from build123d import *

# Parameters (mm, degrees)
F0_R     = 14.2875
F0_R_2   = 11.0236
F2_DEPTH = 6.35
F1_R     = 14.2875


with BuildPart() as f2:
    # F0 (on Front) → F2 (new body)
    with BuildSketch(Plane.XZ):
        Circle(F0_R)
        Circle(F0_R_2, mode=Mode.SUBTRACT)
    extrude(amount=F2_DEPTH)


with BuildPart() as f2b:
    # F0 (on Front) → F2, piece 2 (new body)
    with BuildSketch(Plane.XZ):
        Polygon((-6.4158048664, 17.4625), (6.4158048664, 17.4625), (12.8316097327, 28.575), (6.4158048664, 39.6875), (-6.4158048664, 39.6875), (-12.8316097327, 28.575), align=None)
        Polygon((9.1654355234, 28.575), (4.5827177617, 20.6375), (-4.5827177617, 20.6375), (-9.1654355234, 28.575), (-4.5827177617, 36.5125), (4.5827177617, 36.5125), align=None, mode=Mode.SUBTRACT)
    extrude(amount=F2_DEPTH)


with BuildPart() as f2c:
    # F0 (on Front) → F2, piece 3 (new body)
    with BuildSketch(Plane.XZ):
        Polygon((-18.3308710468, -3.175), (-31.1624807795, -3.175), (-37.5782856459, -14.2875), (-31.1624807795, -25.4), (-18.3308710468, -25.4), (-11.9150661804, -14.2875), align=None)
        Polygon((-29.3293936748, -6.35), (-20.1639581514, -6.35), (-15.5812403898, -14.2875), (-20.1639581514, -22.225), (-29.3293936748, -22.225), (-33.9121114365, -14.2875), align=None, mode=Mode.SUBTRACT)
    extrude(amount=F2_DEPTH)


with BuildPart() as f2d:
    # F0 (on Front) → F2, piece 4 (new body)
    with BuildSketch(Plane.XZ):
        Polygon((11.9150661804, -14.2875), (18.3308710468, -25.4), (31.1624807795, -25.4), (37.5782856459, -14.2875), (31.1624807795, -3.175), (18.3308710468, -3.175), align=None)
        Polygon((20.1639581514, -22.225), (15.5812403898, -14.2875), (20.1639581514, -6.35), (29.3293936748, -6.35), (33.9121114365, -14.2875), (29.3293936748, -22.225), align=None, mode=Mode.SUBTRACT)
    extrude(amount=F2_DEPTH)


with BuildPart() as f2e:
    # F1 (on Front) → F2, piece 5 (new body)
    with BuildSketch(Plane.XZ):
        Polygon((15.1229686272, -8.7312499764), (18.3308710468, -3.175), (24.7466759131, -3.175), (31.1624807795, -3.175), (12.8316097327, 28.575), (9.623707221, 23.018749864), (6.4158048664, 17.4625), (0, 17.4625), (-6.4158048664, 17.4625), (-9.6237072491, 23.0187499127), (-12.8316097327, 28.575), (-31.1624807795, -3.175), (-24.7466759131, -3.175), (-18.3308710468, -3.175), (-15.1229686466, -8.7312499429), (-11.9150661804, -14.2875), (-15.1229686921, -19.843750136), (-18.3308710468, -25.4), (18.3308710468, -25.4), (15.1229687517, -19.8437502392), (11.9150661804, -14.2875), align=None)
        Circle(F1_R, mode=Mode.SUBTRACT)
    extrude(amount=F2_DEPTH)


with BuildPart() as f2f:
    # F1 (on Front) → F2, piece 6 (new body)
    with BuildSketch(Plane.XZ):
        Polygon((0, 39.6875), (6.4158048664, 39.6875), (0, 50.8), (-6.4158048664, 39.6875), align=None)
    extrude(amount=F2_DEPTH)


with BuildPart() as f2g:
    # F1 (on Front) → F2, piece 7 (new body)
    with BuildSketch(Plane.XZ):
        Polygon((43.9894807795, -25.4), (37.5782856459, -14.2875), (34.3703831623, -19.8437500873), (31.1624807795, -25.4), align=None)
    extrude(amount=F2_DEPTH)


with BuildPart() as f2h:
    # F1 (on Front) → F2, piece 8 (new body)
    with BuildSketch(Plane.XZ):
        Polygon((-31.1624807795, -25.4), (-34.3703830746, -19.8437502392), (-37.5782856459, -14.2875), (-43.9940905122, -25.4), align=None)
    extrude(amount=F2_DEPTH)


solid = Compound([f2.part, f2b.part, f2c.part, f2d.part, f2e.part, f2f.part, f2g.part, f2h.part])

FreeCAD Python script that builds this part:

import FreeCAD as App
import Part
import Sketcher

V = App.Vector
Q = App.Units.Quantity

doc = App.newDocument("Part")
body = doc.addObject("PartDesign::Body", "Body")

# Sketch on XZ plane
sketch1 = body.newObject("Sketcher::SketchObject", "Sketch")
sketch1.AttachmentSupport = (doc.getObject("XZ_Plane"), [""])
sketch1.MapMode = "FlatFace"
sketch1.addGeometry([
    Part.Circle(V(0, 0, 0), V(0, 0, 1), 14),
    Part.Circle(V(0, 0, 0), V(0, 0, 1), 11),
], False)
sketch1.addConstraint([
    Sketcher.Constraint("Coincident", 0, 3, -1, 1),
    Sketcher.Constraint("Coincident", 1, 3, -1, 1),
    Sketcher.Constraint("Diameter", 0, Q("1.125 in")),
    Sketcher.Constraint("Diameter", 1, Q("0.868 in")),
])
pad1 = body.newObject("PartDesign::Pad", "Pad")
pad1.Profile = sketch1
pad1.Length = Q("0.25 in")
body2 = doc.addObject("PartDesign::Body", "Body001")

# Sketch on XZ plane
sketch2 = body2.newObject("Sketcher::SketchObject", "Sketch001")
sketch2.AttachmentSupport = (doc.getObject("XZ_Plane001"), [""])
sketch2.MapMode = "FlatFace"
sketch2.addGeometry([
    Part.LineSegment(V(-6, 17, 0), V(6, 17, 0)),  # 0
    Part.LineSegment(V(6, 17, 0), V(13, 29, 0)),  # 1
    Part.LineSegment(V(13, 29, 0), V(6, 40, 0)),  # 2
    Part.LineSegment(V(6, 40, 0), V(-6, 40, 0)),  # 3
    Part.LineSegment(V(-6, 40, 0), V(-13, 29, 0)),  # 4
    Part.LineSegment(V(-13, 29, 0), V(-6, 17, 0)),  # 5
    Part.LineSegment(V(5, 37, 0), V(9, 29, 0)),  # 6
    Part.LineSegment(V(9, 29, 0), V(5, 21, 0)),  # 7
    Part.LineSegment(V(5, 21, 0), V(-5, 21, 0)),  # 8
    Part.LineSegment(V(-5, 21, 0), V(-9, 29, 0)),  # 9
    Part.LineSegment(V(-9, 29, 0), V(-5, 37, 0)),  # 10
    Part.LineSegment(V(-5, 37, 0), V(5, 37, 0)),  # 11
], False)
sketch2.addConstraint([
    Sketcher.Constraint("Coincident", 0, 2, 1, 1),
    Sketcher.Constraint("Coincident", 1, 2, 2, 1),
    Sketcher.Constraint("Coincident", 2, 2, 3, 1),
    Sketcher.Constraint("Coincident", 3, 2, 4, 1),
    Sketcher.Constraint("Coincident", 4, 2, 5, 1),
    Sketcher.Constraint("Coincident", 5, 2, 0, 1),
    Sketcher.Constraint("Coincident", 6, 2, 7, 1),
    Sketcher.Constraint("Coincident", 7, 2, 8, 1),
    Sketcher.Constraint("Coincident", 8, 2, 9, 1),
    Sketcher.Constraint("Coincident", 9, 2, 10, 1),
    Sketcher.Constraint("Coincident", 10, 2, 11, 1),
    Sketcher.Constraint("Coincident", 11, 2, 6, 1),
    Sketcher.Constraint("Horizontal", 0),
    Sketcher.Constraint("Horizontal", 3),
    Sketcher.Constraint("Horizontal", 8),
    Sketcher.Constraint("Horizontal", 11),
    Sketcher.Constraint("Symmetric", 1, 2, 4, 2, -2),
    Sketcher.Constraint("Symmetric", 6, 2, 9, 2, -2),
    Sketcher.Constraint("Parallel", 1, 4),
    Sketcher.Constraint("Parallel", 2, 5),
    Sketcher.Constraint("Parallel", 5, 6),
    Sketcher.Constraint("Parallel", 4, 7),
    Sketcher.Constraint("Parallel", 6, 9),
    Sketcher.Constraint("Parallel", 7, 10),
    Sketcher.Constraint("Horizontal", 4, 2, 6, 2),
    Sketcher.Constraint("Vertical", 0, 2, 2, 2),
    Sketcher.Constraint("Vertical", 3, 2, 5, 2),
    Sketcher.Constraint("Vertical", 8, 2, 10, 2),
    Sketcher.Constraint("Angle", 1, Q("60 deg")),
    Sketcher.Constraint("DistanceY", 7, 2, 2, 2, Q("0.75 in")),
    Sketcher.Constraint("DistanceY", -1, 1, 0, 2, Q("0.6875 in")),
    Sketcher.Constraint("DistanceY", -1, 1, 1, 2, Q("1.125 in")),
    Sketcher.Constraint("DistanceX", 0, 1, 0, 2, 12.83161),
    Sketcher.Constraint("DistanceX", 8, 2, 8, 1, 9.165436),
])
pad2 = body2.newObject("PartDesign::Pad", "Pad001")
pad2.Profile = sketch2
pad2.Length = Q("0.25 in")
body3 = doc.addObject("PartDesign::Body", "Body002")

# Sketch on XZ plane
sketch3 = body3.newObject("Sketcher::SketchObject", "Sketch002")
sketch3.AttachmentSupport = (doc.getObject("XZ_Plane002"), [""])
sketch3.MapMode = "FlatFace"
sketch3.addGeometry([
    Part.LineSegment(V(-18, -3, 0), V(-31, -3, 0)),  # 0
    Part.LineSegment(V(-31, -3, 0), V(-38, -14, 0)),  # 1
    Part.LineSegment(V(-38, -14, 0), V(-31, -25, 0)),  # 2
    Part.LineSegment(V(-31, -25, 0), V(-18, -25, 0)),  # 3
    Part.LineSegment(V(-18, -25, 0), V(-12, -14, 0)),  # 4
    Part.LineSegment(V(-12, -14, 0), V(-18, -3, 0)),  # 5
    Part.LineSegment(V(-34, -14, 0), V(-29, -6, 0)),  # 6
    Part.LineSegment(V(-29, -6, 0), V(-20, -6, 0)),  # 7
    Part.LineSegment(V(-20, -6, 0), V(-16, -14, 0)),  # 8
    Part.LineSegment(V(-16, -14, 0), V(-20, -22, 0)),  # 9
    Part.LineSegment(V(-20, -22, 0), V(-29, -22, 0)),  # 10
    Part.LineSegment(V(-29, -22, 0), V(-34, -14, 0)),  # 11
], False)
sketch3.addConstraint([
    Sketcher.Constraint("Coincident", 0, 2, 1, 1),
    Sketcher.Constraint("Coincident", 1, 2, 2, 1),
    Sketcher.Constraint("Coincident", 2, 2, 3, 1),
    Sketcher.Constraint("Coincident", 3, 2, 4, 1),
    Sketcher.Constraint("Coincident", 4, 2, 5, 1),
    Sketcher.Constraint("Coincident", 5, 2, 0, 1),
    Sketcher.Constraint("Coincident", 6, 2, 7, 1),
    Sketcher.Constraint("Coincident", 7, 2, 8, 1),
    Sketcher.Constraint("Coincident", 8, 2, 9, 1),
    Sketcher.Constraint("Coincident", 9, 2, 10, 1),
    Sketcher.Constraint("Coincident", 10, 2, 11, 1),
    Sketcher.Constraint("Coincident", 11, 2, 6, 1),
    Sketcher.Constraint("Horizontal", 0),
    Sketcher.Constraint("Horizontal", 3),
    Sketcher.Constraint("Horizontal", 7),
    Sketcher.Constraint("Horizontal", 10),
    Sketcher.Constraint("Parallel", 1, 4),
    Sketcher.Constraint("Parallel", 2, 5),
    Sketcher.Constraint("Parallel", 4, 6),
    Sketcher.Constraint("Parallel", 5, 8),
    Sketcher.Constraint("Parallel", 6, 9),
    Sketcher.Constraint("Parallel", 8, 11),
    Sketcher.Constraint("Horizontal", 1, 2, 4, 2),
    Sketcher.Constraint("Horizontal", 4, 2, 8, 2),
    Sketcher.Constraint("Horizontal", 8, 2, 11, 2),
    Sketcher.Constraint("Vertical", 0, 2, 2, 2),
    Sketcher.Constraint("Vertical", 3, 2, 5, 2),
    Sketcher.Constraint("Vertical", 7, 2, 9, 2),
    Sketcher.Constraint("DistanceY", 2, 2, -1, 1, Q("1 in")),
    Sketcher.Constraint("Angle", 1, Q("-120 deg")),
    Sketcher.Constraint("DistanceY", 6, 2, -1, 1, Q("0.25 in")),
    Sketcher.Constraint("DistanceY", 0, 2, -1, 1, Q("0.125 in")),
    Sketcher.Constraint("DistanceX", 0, 2, 0, 1, 12.83161),
    Sketcher.Constraint("DistanceX", 7, 1, 7, 2, 9.165436),
    Sketcher.Constraint("DistanceX", 0, 2, -1, 1, 31.162481),
    Sketcher.Constraint("DistanceX", 7, 2, -1, 1, 20.163958),
])
pad3 = body3.newObject("PartDesign::Pad", "Pad002")
pad3.Profile = sketch3
pad3.Length = Q("0.25 in")
body4 = doc.addObject("PartDesign::Body", "Body003")

# Sketch on XZ plane
sketch4 = body4.newObject("Sketcher::SketchObject", "Sketch003")
sketch4.AttachmentSupport = (doc.getObject("XZ_Plane003"), [""])
sketch4.MapMode = "FlatFace"
sketch4.addGeometry([
    Part.LineSegment(V(12, -14, 0), V(18, -25, 0)),  # 0
    Part.LineSegment(V(18, -25, 0), V(31, -25, 0)),  # 1
    Part.LineSegment(V(31, -25, 0), V(38, -14, 0)),  # 2
    Part.LineSegment(V(38, -14, 0), V(31, -3, 0)),  # 3
    Part.LineSegment(V(31, -3, 0), V(18, -3, 0)),  # 4
    Part.LineSegment(V(18, -3, 0), V(12, -14, 0)),  # 5
    Part.LineSegment(V(29, -22, 0), V(20, -22, 0)),  # 6
    Part.LineSegment(V(20, -22, 0), V(16, -14, 0)),  # 7
    Part.LineSegment(V(16, -14, 0), V(20, -6, 0)),  # 8
    Part.LineSegment(V(20, -6, 0), V(29, -6, 0)),  # 9
    Part.LineSegment(V(29, -6, 0), V(34, -14, 0)),  # 10
    Part.LineSegment(V(34, -14, 0), V(29, -22, 0)),  # 11
], False)
sketch4.addConstraint([
    Sketcher.Constraint("Coincident", 0, 2, 1, 1),
    Sketcher.Constraint("Coincident", 1, 2, 2, 1),
    Sketcher.Constraint("Coincident", 2, 2, 3, 1),
    Sketcher.Constraint("Coincident", 3, 2, 4, 1),
    Sketcher.Constraint("Coincident", 4, 2, 5, 1),
    Sketcher.Constraint("Coincident", 5, 2, 0, 1),
    Sketcher.Constraint("Coincident", 6, 2, 7, 1),
    Sketcher.Constraint("Coincident", 7, 2, 8, 1),
    Sketcher.Constraint("Coincident", 8, 2, 9, 1),
    Sketcher.Constraint("Coincident", 9, 2, 10, 1),
    Sketcher.Constraint("Coincident", 10, 2, 11, 1),
    Sketcher.Constraint("Coincident", 11, 2, 6, 1),
    Sketcher.Constraint("Horizontal", 1),
    Sketcher.Constraint("Horizontal", 4),
    Sketcher.Constraint("Horizontal", 6),
    Sketcher.Constraint("Horizontal", 9),
    Sketcher.Constraint("Parallel", 0, 3),
    Sketcher.Constraint("Parallel", 2, 5),
    Sketcher.Constraint("Parallel", 3, 7),
    Sketcher.Constraint("Parallel", 5, 8),
    Sketcher.Constraint("Parallel", 7, 10),
    Sketcher.Constraint("Parallel", 8, 11),
    Sketcher.Constraint("Horizontal", 2, 2, 5, 2),
    Sketcher.Constraint("Horizontal", 5, 2, 7, 2),
    Sketcher.Constraint("Horizontal", 7, 2, 10, 2),
    Sketcher.Constraint("Vertical", 1, 2, 3, 2),
    Sketcher.Constraint("Vertical", 0, 2, 4, 2),
    Sketcher.Constraint("Vertical", 6, 2, 8, 2),
    Sketcher.Constraint("DistanceY", 0, 2, -1, 1, Q("1 in")),
    Sketcher.Constraint("Angle", 0, Q("-60 deg")),
    Sketcher.Constraint("DistanceY", 8, 2, -1, 1, Q("0.25 in")),
    Sketcher.Constraint("DistanceY", 2, 2, -1, 1, Q("0.5625 in")),
    Sketcher.Constraint("DistanceX", 1, 1, 1, 2, 12.83161),
    Sketcher.Constraint("DistanceX", 6, 2, 6, 1, 9.165436),
    Sketcher.Constraint("DistanceX", -1, 1, 0, 2, 18.330871),
    Sketcher.Constraint("DistanceX", -1, 1, 6, 2, 20.163958),
])
pad4 = body4.newObject("PartDesign::Pad", "Pad003")
pad4.Profile = sketch4
pad4.Length = Q("0.25 in")
body5 = doc.addObject("PartDesign::Body", "Body004")

# Sketch on XZ plane
sketch5 = body5.newObject("Sketcher::SketchObject", "Sketch004")
sketch5.AttachmentSupport = (doc.getObject("XZ_Plane004"), [""])
sketch5.MapMode = "FlatFace"
sketch5.addGeometry([
    Part.LineSegment(V(15, -9, 0), V(18, -3, 0)),  # 0
    Part.LineSegment(V(18, -3, 0), V(31, -3, 0)),  # 1
    Part.LineSegment(V(31, -3, 0), V(13, 29, 0)),  # 2
    Part.LineSegment(V(13, 29, 0), V(10, 23, 0)),  # 3
    Part.LineSegment(V(10, 23, 0), V(6, 17, 0)),  # 4
    Part.LineSegment(V(6, 17, 0), V(-6, 17, 0)),  # 5
    Part.LineSegment(V(-6, 17, 0), V(-10, 23, 0)),  # 6
    Part.LineSegment(V(-10, 23, 0), V(-13, 29, 0)),  # 7
    Part.LineSegment(V(-13, 29, 0), V(-31, -3, 0)),  # 8
    Part.LineSegment(V(-31, -3, 0), V(-18, -3, 0)),  # 9
    Part.LineSegment(V(-18, -3, 0), V(-15, -9, 0)),  # 10
    Part.LineSegment(V(-15, -9, 0), V(-12, -14, 0)),  # 11
    Part.LineSegment(V(-12, -14, 0), V(-15, -20, 0)),  # 12
    Part.LineSegment(V(-15, -20, 0), V(-18, -25, 0)),  # 13
    Part.LineSegment(V(-18, -25, 0), V(18, -25, 0)),  # 14
    Part.LineSegment(V(18, -25, 0), V(12, -14, 0)),  # 15
    Part.LineSegment(V(12, -14, 0), V(15, -9, 0)),  # 16
    Part.Circle(V(0, 0, 0), V(0, 0, 1), 14),  # 17
], False)
sketch5.addConstraint([
    Sketcher.Constraint("Coincident", 0, 2, 1, 1),
    Sketcher.Constraint("Coincident", 1, 2, 2, 1),
    Sketcher.Constraint("Coincident", 2, 2, 3, 1),
    Sketcher.Constraint("Coincident", 3, 2, 4, 1),
    Sketcher.Constraint("Coincident", 4, 2, 5, 1),
    Sketcher.Constraint("Coincident", 5, 2, 6, 1),
    Sketcher.Constraint("Coincident", 6, 2, 7, 1),
    Sketcher.Constraint("Coincident", 7, 2, 8, 1),
    Sketcher.Constraint("Coincident", 8, 2, 9, 1),
    Sketcher.Constraint("Coincident", 9, 2, 10, 1),
    Sketcher.Constraint("Coincident", 10, 2, 11, 1),
    Sketcher.Constraint("Coincident", 11, 2, 12, 1),
    Sketcher.Constraint("Coincident", 12, 2, 13, 1),
    Sketcher.Constraint("Coincident", 13, 2, 14, 1),
    Sketcher.Constraint("Coincident", 14, 2, 15, 1),
    Sketcher.Constraint("Coincident", 15, 2, 16, 1),
    Sketcher.Constraint("Coincident", 16, 2, 0, 1),
    Sketcher.Constraint("Horizontal", 1),
    Sketcher.Constraint("Horizontal", 5),
    Sketcher.Constraint("Horizontal", 9),
    Sketcher.Constraint("Horizontal", 14),
    Sketcher.Constraint("Coincident", 17, 3, -1, 1),
    Sketcher.Constraint("Symmetric", 3, 2, 6, 2, -2),
    Sketcher.Constraint("Symmetric", 2, 2, 7, 2, -2),
    Sketcher.Constraint("Symmetric", 1, 2, 8, 2, -2),
    Sketcher.Constraint("Symmetric", 11, 2, 15, 2, -2),
    Sketcher.Constraint("Symmetric", 10, 2, 16, 2, -2),
    Sketcher.Constraint("Parallel", 0, 3),
    Sketcher.Constraint("Parallel", 3, 4),
    Sketcher.Constraint("Parallel", 2, 6),
    Sketcher.Constraint("Parallel", 6, 7),
    Sketcher.Constraint("Parallel", 7, 10),
    Sketcher.Constraint("Parallel", 10, 11),
    Sketcher.Constraint("Parallel", 8, 12),
    Sketcher.Constraint("Parallel", 12, 13),
    Sketcher.Constraint("Parallel", 11, 15),
    Sketcher.Constraint("Vertical", 10, 2, 12, 2),
    Sketcher.Constraint("Vertical", 9, 2, 13, 2),
    Sketcher.Constraint("Equal", 1, 5),
    Sketcher.Constraint("Equal", 0, 3),
    Sketcher.Constraint("Equal", 3, 4),
    Sketcher.Constraint("Equal", 10, 11),
    Sketcher.Constraint("Diameter", 17, Q("1.125 in")),
    Sketcher.Constraint("DistanceY", 13, 2, -1, 1, Q("1 in")),
    Sketcher.Constraint("Angle", 0, Q("60 deg")),
    Sketcher.Constraint("DistanceY", 0, 2, 2, 2, Q("1.25 in")),
    Sketcher.Constraint("DistanceY", 0, 2, -1, 1, Q("0.125 in")),
    Sketcher.Constraint("DistanceX", 1, 1, 1, 2, 12.83161),
])
pad5 = body5.newObject("PartDesign::Pad", "Pad004")
pad5.Profile = sketch5
pad5.Length = Q("0.25 in")
body6 = doc.addObject("PartDesign::Body", "Body005")

# Sketch on XZ plane
sketch6 = body6.newObject("Sketcher::SketchObject", "Sketch005")
sketch6.AttachmentSupport = (doc.getObject("XZ_Plane005"), [""])
sketch6.MapMode = "FlatFace"
sketch6.addGeometry([
    Part.LineSegment(V(6, 40, 0), V(0, 51, 0)),
    Part.LineSegment(V(0, 51, 0), V(-6, 40, 0)),
    Part.LineSegment(V(-6, 40, 0), V(6, 40, 0)),
], False)
sketch6.addConstraint([
    Sketcher.Constraint("Coincident", 0, 2, 1, 1),
    Sketcher.Constraint("Coincident", 1, 2, 2, 1),
    Sketcher.Constraint("Coincident", 2, 2, 0, 1),
    Sketcher.Constraint("Horizontal", 2),
    Sketcher.Constraint("PointOnObject", 0, 2, -2),
    Sketcher.Constraint("Equal", 0, 1),
    Sketcher.Constraint("DistanceY", -1, 1, 0, 2, Q("2 in")),
    Sketcher.Constraint("Angle", 0, Q("120 deg")),
    Sketcher.Constraint("DistanceY", -1, 1, 1, 2, Q("1.5625 in")),
])
pad6 = body6.newObject("PartDesign::Pad", "Pad005")
pad6.Profile = sketch6
pad6.Length = Q("0.25 in")
body7 = doc.addObject("PartDesign::Body", "Body006")

# Sketch on XZ plane
sketch7 = body7.newObject("Sketcher::SketchObject", "Sketch006")
sketch7.AttachmentSupport = (doc.getObject("XZ_Plane006"), [""])
sketch7.MapMode = "FlatFace"
sketch7.addGeometry([
    Part.LineSegment(V(44, -25, 0), V(38, -14, 0)),
    Part.LineSegment(V(38, -14, 0), V(31, -25, 0)),
    Part.LineSegment(V(31, -25, 0), V(44, -25, 0)),
], False)
sketch7.addConstraint([
    Sketcher.Constraint("Coincident", 0, 2, 1, 1),
    Sketcher.Constraint("Coincident", 1, 2, 2, 1),
    Sketcher.Constraint("Coincident", 2, 2, 0, 1),
    Sketcher.Constraint("Horizontal", 2),
    Sketcher.Constraint("DistanceY", 1, 2, -1, 1, Q("1 in")),
    Sketcher.Constraint("Angle", 1, Q("-120 deg")),
    Sketcher.Constraint("DistanceX", 2, 1, 2, 2, Q("0.505 in")),
    Sketcher.Constraint("DistanceY", 0, 2, -1, 1, Q("0.5625 in")),
    Sketcher.Constraint("DistanceX", -1, 1, 1, 2, 31.162481),
])
pad7 = body7.newObject("PartDesign::Pad", "Pad006")
pad7.Profile = sketch7
pad7.Length = Q("0.25 in")
body8 = doc.addObject("PartDesign::Body", "Body007")

# Sketch on XZ plane
sketch8 = body8.newObject("Sketcher::SketchObject", "Sketch007")
sketch8.AttachmentSupport = (doc.getObject("XZ_Plane007"), [""])
sketch8.MapMode = "FlatFace"
sketch8.addGeometry([
    Part.LineSegment(V(-31, -25, 0), V(-38, -14, 0)),
    Part.LineSegment(V(-38, -14, 0), V(-44, -25, 0)),
    Part.LineSegment(V(-44, -25, 0), V(-31, -25, 0)),
], False)
sketch8.addConstraint([
    Sketcher.Constraint("Coincident", 0, 2, 1, 1),
    Sketcher.Constraint("Coincident", 1, 2, 2, 1),
    Sketcher.Constraint("Coincident", 2, 2, 0, 1),
    Sketcher.Constraint("Horizontal", 2),
    Sketcher.Constraint("Equal", 0, 1),
    Sketcher.Constraint("DistanceY", 1, 2, -1, 1, Q("1 in")),
    Sketcher.Constraint("Angle", 0, Q("120 deg")),
    Sketcher.Constraint("DistanceY", 0, 2, -1, 1, Q("0.5625 in")),
    Sketcher.Constraint("DistanceX", 1, 2, -1, 1, 43.994091),
])
pad8 = body8.newObject("PartDesign::Pad", "Pad007")
pad8.Profile = sketch8
pad8.Length = Q("0.25 in")

doc.recompute()
